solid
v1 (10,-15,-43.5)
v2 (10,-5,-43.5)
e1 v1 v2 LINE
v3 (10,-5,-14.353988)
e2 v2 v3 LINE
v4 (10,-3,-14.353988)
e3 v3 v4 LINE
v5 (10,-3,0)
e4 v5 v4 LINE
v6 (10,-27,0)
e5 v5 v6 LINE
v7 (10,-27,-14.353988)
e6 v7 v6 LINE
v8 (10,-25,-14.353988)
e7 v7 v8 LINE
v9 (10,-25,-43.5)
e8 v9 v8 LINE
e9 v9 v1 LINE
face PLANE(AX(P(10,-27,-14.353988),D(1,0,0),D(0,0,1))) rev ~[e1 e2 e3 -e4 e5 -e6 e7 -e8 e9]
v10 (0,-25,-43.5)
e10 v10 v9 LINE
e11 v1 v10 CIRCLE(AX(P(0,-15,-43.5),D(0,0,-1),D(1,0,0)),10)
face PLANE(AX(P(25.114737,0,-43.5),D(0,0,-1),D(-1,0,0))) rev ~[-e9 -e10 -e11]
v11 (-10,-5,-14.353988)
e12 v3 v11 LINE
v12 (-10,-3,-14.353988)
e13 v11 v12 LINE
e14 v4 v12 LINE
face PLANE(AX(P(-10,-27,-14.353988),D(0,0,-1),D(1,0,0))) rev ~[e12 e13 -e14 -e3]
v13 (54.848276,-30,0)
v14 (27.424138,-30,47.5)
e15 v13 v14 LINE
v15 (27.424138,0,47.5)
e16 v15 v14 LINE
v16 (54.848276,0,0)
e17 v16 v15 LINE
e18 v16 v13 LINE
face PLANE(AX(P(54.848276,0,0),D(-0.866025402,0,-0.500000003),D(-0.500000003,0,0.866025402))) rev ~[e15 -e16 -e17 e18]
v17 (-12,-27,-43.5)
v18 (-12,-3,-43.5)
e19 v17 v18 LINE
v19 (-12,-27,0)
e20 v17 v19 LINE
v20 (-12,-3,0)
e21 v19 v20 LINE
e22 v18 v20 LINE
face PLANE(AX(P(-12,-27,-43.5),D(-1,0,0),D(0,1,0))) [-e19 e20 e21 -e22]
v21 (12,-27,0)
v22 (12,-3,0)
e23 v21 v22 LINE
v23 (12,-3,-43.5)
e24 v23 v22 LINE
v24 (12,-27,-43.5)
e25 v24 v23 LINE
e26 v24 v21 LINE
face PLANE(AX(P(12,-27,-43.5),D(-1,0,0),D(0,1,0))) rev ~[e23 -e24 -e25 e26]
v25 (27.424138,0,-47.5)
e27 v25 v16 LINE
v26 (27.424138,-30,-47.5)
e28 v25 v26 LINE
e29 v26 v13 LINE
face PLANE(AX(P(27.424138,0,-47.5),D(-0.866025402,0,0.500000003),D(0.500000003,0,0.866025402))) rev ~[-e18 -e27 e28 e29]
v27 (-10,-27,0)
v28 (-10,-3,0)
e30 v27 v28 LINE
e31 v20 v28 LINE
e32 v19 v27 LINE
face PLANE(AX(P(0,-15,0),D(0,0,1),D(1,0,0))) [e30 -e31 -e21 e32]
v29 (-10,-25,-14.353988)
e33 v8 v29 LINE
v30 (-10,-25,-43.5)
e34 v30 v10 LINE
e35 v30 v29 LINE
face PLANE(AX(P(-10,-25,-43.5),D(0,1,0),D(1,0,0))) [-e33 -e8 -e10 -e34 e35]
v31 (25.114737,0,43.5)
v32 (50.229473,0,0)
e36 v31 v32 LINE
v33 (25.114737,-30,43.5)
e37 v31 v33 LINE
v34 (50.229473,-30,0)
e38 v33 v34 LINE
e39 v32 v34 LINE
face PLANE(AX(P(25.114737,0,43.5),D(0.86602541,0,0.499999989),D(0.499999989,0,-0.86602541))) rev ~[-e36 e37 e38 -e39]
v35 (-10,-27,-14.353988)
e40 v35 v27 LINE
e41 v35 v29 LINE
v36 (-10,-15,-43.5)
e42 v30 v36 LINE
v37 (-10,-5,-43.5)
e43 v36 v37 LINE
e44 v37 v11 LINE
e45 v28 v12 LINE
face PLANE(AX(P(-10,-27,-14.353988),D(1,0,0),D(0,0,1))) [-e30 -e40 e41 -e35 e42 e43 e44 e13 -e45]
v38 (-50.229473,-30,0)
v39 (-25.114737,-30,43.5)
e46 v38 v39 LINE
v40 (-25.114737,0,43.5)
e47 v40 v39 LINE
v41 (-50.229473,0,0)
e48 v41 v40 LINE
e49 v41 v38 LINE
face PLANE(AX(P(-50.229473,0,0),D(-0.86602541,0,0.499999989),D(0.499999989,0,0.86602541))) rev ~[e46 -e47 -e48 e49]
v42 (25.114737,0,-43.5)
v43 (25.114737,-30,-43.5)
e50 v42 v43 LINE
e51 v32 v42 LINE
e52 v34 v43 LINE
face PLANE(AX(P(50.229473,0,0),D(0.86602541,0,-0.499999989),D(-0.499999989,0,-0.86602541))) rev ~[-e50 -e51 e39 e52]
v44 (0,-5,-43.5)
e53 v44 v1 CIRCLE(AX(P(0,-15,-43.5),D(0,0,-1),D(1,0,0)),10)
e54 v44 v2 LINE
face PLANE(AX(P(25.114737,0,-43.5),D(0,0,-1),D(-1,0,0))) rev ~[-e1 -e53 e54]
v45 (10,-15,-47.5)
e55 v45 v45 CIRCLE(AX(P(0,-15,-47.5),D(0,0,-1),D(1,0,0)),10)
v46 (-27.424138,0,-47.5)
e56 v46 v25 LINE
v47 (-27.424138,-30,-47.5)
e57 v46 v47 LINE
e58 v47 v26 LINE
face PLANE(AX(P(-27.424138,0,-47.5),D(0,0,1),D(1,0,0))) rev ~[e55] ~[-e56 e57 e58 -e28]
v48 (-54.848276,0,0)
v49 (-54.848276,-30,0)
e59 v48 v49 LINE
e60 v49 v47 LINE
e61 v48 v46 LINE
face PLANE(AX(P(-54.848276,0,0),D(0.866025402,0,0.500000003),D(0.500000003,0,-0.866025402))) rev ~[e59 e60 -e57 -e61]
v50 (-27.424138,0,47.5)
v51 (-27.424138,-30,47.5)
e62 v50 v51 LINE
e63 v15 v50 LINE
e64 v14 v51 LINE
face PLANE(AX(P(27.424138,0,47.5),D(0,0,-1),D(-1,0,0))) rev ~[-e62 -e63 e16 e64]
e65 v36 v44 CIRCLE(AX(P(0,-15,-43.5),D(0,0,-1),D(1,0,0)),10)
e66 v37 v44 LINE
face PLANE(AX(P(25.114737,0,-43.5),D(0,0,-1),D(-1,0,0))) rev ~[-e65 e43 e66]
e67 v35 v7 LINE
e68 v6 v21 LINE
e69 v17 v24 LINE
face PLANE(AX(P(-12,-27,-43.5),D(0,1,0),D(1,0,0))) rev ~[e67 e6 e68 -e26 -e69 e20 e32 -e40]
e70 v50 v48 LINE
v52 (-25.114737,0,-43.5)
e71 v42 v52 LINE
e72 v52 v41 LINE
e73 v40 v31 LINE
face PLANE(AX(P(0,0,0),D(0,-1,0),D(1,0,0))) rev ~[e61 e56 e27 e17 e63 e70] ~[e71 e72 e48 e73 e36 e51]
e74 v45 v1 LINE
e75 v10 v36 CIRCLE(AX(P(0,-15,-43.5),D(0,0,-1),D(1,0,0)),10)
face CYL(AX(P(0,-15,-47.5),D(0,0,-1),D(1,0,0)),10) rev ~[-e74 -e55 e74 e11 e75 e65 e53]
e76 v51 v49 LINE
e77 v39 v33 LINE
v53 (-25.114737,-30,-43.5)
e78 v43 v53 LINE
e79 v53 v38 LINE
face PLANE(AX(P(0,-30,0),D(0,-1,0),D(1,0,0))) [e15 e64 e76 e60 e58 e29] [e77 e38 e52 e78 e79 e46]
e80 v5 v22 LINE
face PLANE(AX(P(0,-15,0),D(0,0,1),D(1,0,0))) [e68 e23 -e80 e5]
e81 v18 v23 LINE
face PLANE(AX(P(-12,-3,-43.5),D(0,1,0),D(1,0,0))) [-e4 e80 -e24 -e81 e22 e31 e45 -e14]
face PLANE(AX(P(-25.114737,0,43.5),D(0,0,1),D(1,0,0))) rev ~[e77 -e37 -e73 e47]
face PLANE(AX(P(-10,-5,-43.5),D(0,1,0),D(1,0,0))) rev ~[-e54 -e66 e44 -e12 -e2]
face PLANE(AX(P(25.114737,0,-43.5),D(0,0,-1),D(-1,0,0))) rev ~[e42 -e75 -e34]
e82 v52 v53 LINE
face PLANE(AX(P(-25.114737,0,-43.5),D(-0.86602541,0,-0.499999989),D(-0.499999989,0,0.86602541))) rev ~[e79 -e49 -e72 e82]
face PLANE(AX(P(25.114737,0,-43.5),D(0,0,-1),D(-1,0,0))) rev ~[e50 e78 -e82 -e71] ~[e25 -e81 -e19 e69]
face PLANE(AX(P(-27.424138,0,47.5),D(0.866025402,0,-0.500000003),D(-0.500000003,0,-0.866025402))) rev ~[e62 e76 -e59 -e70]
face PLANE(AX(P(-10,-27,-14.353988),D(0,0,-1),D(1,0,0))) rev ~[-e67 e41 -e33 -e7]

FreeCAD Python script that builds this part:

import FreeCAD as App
import Part
import Sketcher
Q = App.Units.Quantity


def add_polygon(sketch, points):
    """Adds a closed chain of lines whose ends are joined by coincident constraints."""
    first, n = sketch.GeometryCount, len(points)
    for a, b in zip(points, points[1:] + points[:1]):
        sketch.addGeometry(Part.LineSegment(App.Vector(*a, 0), App.Vector(*b, 0)), False)
    for i in range(n):
        sketch.addConstraint(Sketcher.Constraint("Coincident", first + i, 2, first + (i + 1) % n, 1))

doc = App.newDocument("Part")
body = doc.addObject("PartDesign::Body", "Body")

# Sketch on XZ plane
sketch1 = body.newObject("Sketcher::SketchObject", "Sketch")
sketch1.AttachmentSupport = (doc.getObject("XZ_Plane"), [""])
sketch1.MapMode = "FlatFace"
add_polygon(sketch1, [(-27, -48), (27, -48), (55, 0), (27, 48), (-27, 48), (-55, 0)])  # lines 0-5
add_polygon(sketch1, [(25, 44), (50, 0), (25, -44), (-25, -44), (-50, 0), (-25, 44)])  # lines 6-11
sketch1.addConstraint(Sketcher.Constraint("Horizontal", 0))
sketch1.addConstraint(Sketcher.Constraint("Horizontal", 3))
sketch1.addConstraint(Sketcher.Constraint("Horizontal", 8))
sketch1.addConstraint(Sketcher.Constraint("Horizontal", 11))
sketch1.addConstraint(Sketcher.Constraint("Symmetric", 0, 2, 3, 2, -1, 1))
sketch1.addConstraint(Sketcher.Constraint("Symmetric", 1, 2, 4, 2, -1, 1))
sketch1.addConstraint(Sketcher.Constraint("Symmetric", 6, 2, 9, 2, -1, 1))
sketch1.addConstraint(Sketcher.Constraint("Symmetric", 7, 2, 10, 2, -1, 1))
sketch1.addConstraint(Sketcher.Constraint("PointOnObject", 1, 2, -1))
sketch1.addConstraint(Sketcher.Constraint("PointOnObject", 6, 2, -1))
sketch1.addConstraint(Sketcher.Constraint("Parallel", 2, 5))
sketch1.addConstraint(Sketcher.Constraint("Parallel", 5, 6))
sketch1.addConstraint(Sketcher.Constraint("Parallel", 4, 7))
sketch1.addConstraint(Sketcher.Constraint("Parallel", 6, 9))
sketch1.addConstraint(Sketcher.Constraint("Vertical", 0, 2, 2, 2))
sketch1.addConstraint(Sketcher.Constraint("Angle", 1, Q("60 deg")))
sketch1.addConstraint(Sketcher.Constraint("DistanceY", 0, 2, 2, 2, Q("95 mm")))
sketch1.addConstraint(Sketcher.Constraint("DistanceY", 0, 2, 7, 2, Q("4 mm")))
sketch1.addConstraint(Sketcher.Constraint("DistanceX", 7, 2, 0, 2, Q("2.309401 mm")))
sketch1.addConstraint(Sketcher.Constraint("DistanceX", 0, 1, 0, 2, Q("54.848276 mm")))
pad1 = body.newObject("PartDesign::Pad", "Pad")
pad1.Profile = sketch1
pad1.Length = 30

# Sketch on XY plane
sketch2 = body.newObject("Sketcher::SketchObject", "Sketch001")
sketch2.AttachmentSupport = (doc.getObject("XY_Plane"), [""])
sketch2.MapMode = "FlatFace"
sketch2.AttachmentOffset = App.Placement(App.Vector(0, 0, -47.5), App.Rotation())
sketch2.addGeometry(Part.Circle(App.Vector(0, -15, 0), App.Vector(0, 0, 1), 10), False)
sketch2.addConstraint(Sketcher.Constraint("PointOnObject", 0, 3, -2))
sketch2.addConstraint(Sketcher.Constraint("Diameter", 0, Q("20 mm")))
sketch2.addConstraint(Sketcher.Constraint("DistanceY", 0, 3, -1, 1, Q("15 mm")))
pocket1 = body.newObject("PartDesign::Pocket", "Pocket")
pocket1.Profile = sketch2
pocket1.Length = 4
pocket1.Reversed = True

# Sketch on XY plane
sketch3 = body.newObject("Sketcher::SketchObject", "Sketch002")
sketch3.AttachmentSupport = (doc.getObject("XY_Plane"), [""])
sketch3.MapMode = "FlatFace"
sketch3.AttachmentOffset = App.Placement(App.Vector(0, 0, -43.5), App.Rotation())
add_polygon(sketch3, [(-12, -3), (-12, -27), (12, -27), (12, -3)])  # lines 0-3
add_polygon(sketch3, [(10, -25), (-10, -25), (-10, -5), (10, -5)])  # lines 4-7
sketch3.addConstraint(Sketcher.Constraint("Vertical", 0))
sketch3.addConstraint(Sketcher.Constraint("Horizontal", 1))
sketch3.addConstraint(Sketcher.Constraint("Vertical", 2))
sketch3.addConstraint(Sketcher.Constraint("Horizontal", 3))
sketch3.addConstraint(Sketcher.Constraint("Horizontal", 4))
sketch3.addConstraint(Sketcher.Constraint("Vertical", 5))
sketch3.addConstraint(Sketcher.Constraint("Horizontal", 6))
sketch3.addConstraint(Sketcher.Constraint("Vertical", 7))
sketch3.addConstraint(Sketcher.Constraint("Equal", 3, 0))
sketch3.addConstraint(Sketcher.Constraint("Equal", 6, 5))
sketch3.addConstraint(Sketcher.Constraint("DistanceX", 1, 1, 1, 2, Q("24 mm")))
sketch3.addConstraint(Sketcher.Constraint("DistanceX", 4, 2, 4, 1, Q("20 mm")))
sketch3.addConstraint(Sketcher.Constraint("DistanceX", 0, 2, -1, 1, Q("12 mm")))
sketch3.addConstraint(Sketcher.Constraint("DistanceY", 0, 2, -1, 1, Q("27 mm")))
sketch3.addConstraint(Sketcher.Constraint("DistanceX", 4, 2, -1, 1, Q("10 mm")))
sketch3.addConstraint(Sketcher.Constraint("DistanceY", 4, 2, -1, 1, Q("25 mm")))
pad2 = body.newObject("PartDesign::Pad", "Pad001")
pad2.Profile = sketch3
pad2.Length = 43.5

# Sketch on XZ plane
sketch4 = body.newObject("Sketcher::SketchObject", "Sketch003")
sketch4.AttachmentSupport = (doc.getObject("XZ_Plane"), [""])
sketch4.MapMode = "FlatFace"
sketch4.AttachmentOffset = App.Placement(App.Vector(0, 0, 27), App.Rotation())
add_polygon(sketch4, [(-10, 0), (-10, -14), (10, -14), (10, 0)])  # lines 0-3
sketch4.addConstraint(Sketcher.Constraint("Vertical", 0))
sketch4.addConstraint(Sketcher.Constraint("Horizontal", 1))
sketch4.addConstraint(Sketcher.Constraint("Vertical", 2))
sketch4.addConstraint(Sketcher.Constraint("Horizontal", 3))
sketch4.addConstraint(Sketcher.Constraint("Symmetric", 2, 2, 3, 2, -1, 1))
sketch4.addConstraint(Sketcher.Constraint("DistanceX", 1, 1, 1, 2, Q("20 mm")))
sketch4.addConstraint(Sketcher.Constraint("DistanceY", 0, 2, 0, 1, Q("14.353989 mm")))
pocket2 = body.newObject("PartDesign::Pocket", "Pocket001")
pocket2.Profile = sketch4
pocket2.Length = 28.1

doc.recompute()
